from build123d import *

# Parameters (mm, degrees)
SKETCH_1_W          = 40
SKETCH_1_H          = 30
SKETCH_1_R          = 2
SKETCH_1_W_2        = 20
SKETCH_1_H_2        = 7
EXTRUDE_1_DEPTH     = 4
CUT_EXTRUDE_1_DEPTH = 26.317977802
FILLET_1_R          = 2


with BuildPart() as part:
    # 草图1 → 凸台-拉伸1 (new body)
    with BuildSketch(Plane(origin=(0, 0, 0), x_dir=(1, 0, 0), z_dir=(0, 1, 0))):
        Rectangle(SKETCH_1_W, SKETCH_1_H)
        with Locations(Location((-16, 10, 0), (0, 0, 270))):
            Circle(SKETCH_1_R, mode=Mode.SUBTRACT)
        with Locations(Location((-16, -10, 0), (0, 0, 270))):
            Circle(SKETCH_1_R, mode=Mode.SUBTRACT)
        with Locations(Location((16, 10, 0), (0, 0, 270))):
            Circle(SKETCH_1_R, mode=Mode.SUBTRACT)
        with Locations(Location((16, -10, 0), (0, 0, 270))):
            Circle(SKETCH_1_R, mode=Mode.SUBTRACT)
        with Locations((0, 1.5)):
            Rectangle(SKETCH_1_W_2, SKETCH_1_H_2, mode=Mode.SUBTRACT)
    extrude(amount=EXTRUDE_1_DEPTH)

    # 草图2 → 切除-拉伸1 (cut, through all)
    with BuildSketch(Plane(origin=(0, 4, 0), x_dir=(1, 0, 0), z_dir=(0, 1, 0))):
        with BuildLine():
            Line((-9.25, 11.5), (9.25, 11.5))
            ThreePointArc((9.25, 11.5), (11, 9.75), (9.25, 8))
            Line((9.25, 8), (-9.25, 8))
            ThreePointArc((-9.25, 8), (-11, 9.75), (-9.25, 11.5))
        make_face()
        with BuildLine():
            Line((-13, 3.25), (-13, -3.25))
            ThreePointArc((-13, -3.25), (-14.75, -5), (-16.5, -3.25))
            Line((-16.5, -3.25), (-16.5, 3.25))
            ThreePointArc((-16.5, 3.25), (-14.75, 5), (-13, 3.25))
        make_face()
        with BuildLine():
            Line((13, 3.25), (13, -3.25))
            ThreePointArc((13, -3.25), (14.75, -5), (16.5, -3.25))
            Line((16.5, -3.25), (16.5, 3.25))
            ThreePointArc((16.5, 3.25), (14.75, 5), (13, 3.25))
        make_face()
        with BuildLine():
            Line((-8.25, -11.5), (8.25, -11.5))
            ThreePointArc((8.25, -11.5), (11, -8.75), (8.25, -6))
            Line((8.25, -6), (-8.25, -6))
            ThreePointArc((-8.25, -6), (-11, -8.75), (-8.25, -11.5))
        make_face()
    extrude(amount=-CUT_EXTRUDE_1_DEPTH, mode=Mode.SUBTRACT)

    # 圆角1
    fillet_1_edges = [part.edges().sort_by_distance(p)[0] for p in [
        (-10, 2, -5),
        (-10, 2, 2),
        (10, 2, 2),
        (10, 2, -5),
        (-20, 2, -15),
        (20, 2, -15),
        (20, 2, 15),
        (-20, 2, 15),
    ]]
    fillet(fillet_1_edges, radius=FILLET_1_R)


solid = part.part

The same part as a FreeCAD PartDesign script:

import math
import FreeCAD as App
import Part
import Sketcher

V = App.Vector


def edges_at(feature, points):
    """Names of the edges that pass closest to the given points."""
    edges = feature.Shape.Edges
    near = lambda p: min(range(len(edges)), key=lambda i: edges[i].distToShape(Part.Vertex(*p))[0])
    return sorted({f"Edge{near(p) + 1}" for p in points})

doc = App.newDocument("Part")
body = doc.addObject("PartDesign::Body", "Body")

# Sketch on XZ plane
sketch1 = body.newObject("Sketcher::SketchObject", "Sketch")
sketch1.AttachmentSupport = (doc.getObject("XZ_Plane"), [""])
sketch1.MapMode = "FlatFace"
sketch1.addGeometry(Part.LineSegment(V(-20, -15, 0), V(-20, 15, 0)), False)
sketch1.addGeometry(Part.LineSegment(V(-20, 15, 0), V(20, 15, 0)), False)
sketch1.addGeometry(Part.LineSegment(V(20, 15, 0), V(20, -15, 0)), False)
sketch1.addGeometry(Part.LineSegment(V(20, -15, 0), V(-20, -15, 0)), False)
sketch1.addGeometry(Part.Circle(V(-16, 10, 0), V(0, 0, 1), 2), False)
sketch1.addGeometry(Part.Circle(V(16, 10, 0), V(0, 0, 1), 2), False)
sketch1.addGeometry(Part.Circle(V(-16, -10, 0), V(0, 0, 1), 2), False)
sketch1.addGeometry(Part.LineSegment(V(10, 2, 0), V(-10, 2, 0)), False)
sketch1.addGeometry(Part.LineSegment(V(-10, 2, 0), V(-10, -5, 0)), False)
sketch1.addGeometry(Part.LineSegment(V(-10, -5, 0), V(10, -5, 0)), False)
sketch1.addGeometry(Part.LineSegment(V(10, -5, 0), V(10, 2, 0)), False)
sketch1.addGeometry(Part.Circle(V(16, -10, 0), V(0, 0, 1), 2), False)
sketch1.addConstraint(Sketcher.Constraint("Coincident", 0, 2, 1, 1))
sketch1.addConstraint(Sketcher.Constraint("Coincident", 1, 2, 2, 1))
sketch1.addConstraint(Sketcher.Constraint("Coincident", 2, 2, 3, 1))
sketch1.addConstraint(Sketcher.Constraint("Coincident", 3, 2, 0, 1))
sketch1.addConstraint(Sketcher.Constraint("Coincident", 7, 2, 8, 1))
sketch1.addConstraint(Sketcher.Constraint("Coincident", 8, 2, 9, 1))
sketch1.addConstraint(Sketcher.Constraint("Coincident", 9, 2, 10, 1))
sketch1.addConstraint(Sketcher.Constraint("Coincident", 10, 2, 7, 1))
sketch1.addConstraint(Sketcher.Constraint("Vertical", 0))
sketch1.addConstraint(Sketcher.Constraint("Horizontal", 1))
sketch1.addConstraint(Sketcher.Constraint("Vertical", 2))
sketch1.addConstraint(Sketcher.Constraint("Horizontal", 3))
sketch1.addConstraint(Sketcher.Constraint("Horizontal", 7))
sketch1.addConstraint(Sketcher.Constraint("Vertical", 8))
sketch1.addConstraint(Sketcher.Constraint("Horizontal", 9))
sketch1.addConstraint(Sketcher.Constraint("Vertical", 10))
sketch1.addConstraint(Sketcher.Constraint("Equal", 4, 5))
sketch1.addConstraint(Sketcher.Constraint("Equal", 5, 6))
sketch1.addConstraint(Sketcher.Constraint("Equal", 6, 11))
sketch1.addConstraint(Sketcher.Constraint("Symmetric", 5, 3, 6, 3, -1, 1))
sketch1.addConstraint(Sketcher.Constraint("Symmetric", 4, 3, 11, 3, -1, 1))
sketch1.addConstraint(Sketcher.Constraint("Symmetric", 0, 2, 2, 2, -1, 1))
sketch1.addConstraint(Sketcher.Constraint("Symmetric", 4, 3, 5, 3, -2))
sketch1.addConstraint(Sketcher.Constraint("Diameter", 4, 4.0))
sketch1.addConstraint(Sketcher.Constraint("DistanceX", 1, 1, 1, 2, 40.0))
sketch1.addConstraint(Sketcher.Constraint("DistanceX", 7, 2, 7, 1, 20.0))
sketch1.addConstraint(Sketcher.Constraint("DistanceY", 0, 1, 0, 2, 30.0))
sketch1.addConstraint(Sketcher.Constraint("DistanceY", 8, 2, 8, 1, 7.0))
sketch1.addConstraint(Sketcher.Constraint("DistanceX", 4, 3, -1, 1, 16.0))
sketch1.addConstraint(Sketcher.Constraint("DistanceY", -1, 1, 4, 3, 10.0))
sketch1.addConstraint(Sketcher.Constraint("DistanceX", 7, 2, -1, 1, 10.0))
sketch1.addConstraint(Sketcher.Constraint("DistanceY", -1, 1, 7, 2, 2.0))
pad1 = body.newObject("PartDesign::Pad", "Pad")
pad1.Profile = sketch1
pad1.Length = 4
pad1.Reversed = True

# Sketch on XZ plane
sketch2 = body.newObject("Sketcher::SketchObject", "Sketch001")
sketch2.AttachmentSupport = (doc.getObject("XZ_Plane"), [""])
sketch2.MapMode = "FlatFace"
sketch2.AttachmentOffset = App.Placement(V(0, 0, -4), App.Rotation())
sketch2.addGeometry(Part.LineSegment(V(9.25, -11.5, 0), V(-9.25, -11.5, 0)), False)
sketch2.addGeometry(Part.ArcOfCircle(Part.Circle(V(-9.25, -9.75, 0), V(0, 0, 1), 1.75), math.radians(90), math.radians(270)), False)
sketch2.addGeometry(Part.LineSegment(V(-9.25, -8, 0), V(9.25, -8, 0)), False)
sketch2.addGeometry(Part.ArcOfCircle(Part.Circle(V(9.25, -9.75, 0), V(0, 0, 1), 1.75), math.radians(-90), math.radians(90)), False)
sketch2.addGeometry(Part.LineSegment(V(-13, 3.25, 0), V(-13, -3.25, 0)), False)
sketch2.addGeometry(Part.ArcOfCircle(Part.Circle(V(-14.75, -3.25, 0), V(0, 0, 1), 1.75), math.radians(180), math.radians(360)), False)
sketch2.addGeometry(Part.LineSegment(V(-16.5, -3.25, 0), V(-16.5, 3.25, 0)), False)
sketch2.addGeometry(Part.ArcOfCircle(Part.Circle(V(-14.75, 3.25, 0), V(0, 0, 1), 1.75), math.radians(0), math.radians(180)), False)
sketch2.addGeometry(Part.LineSegment(V(13, -3.25, 0), V(13, 3.25, 0)), False)
sketch2.addGeometry(Part.ArcOfCircle(Part.Circle(V(14.75, 3.25, 0), V(0, 0, 1), 1.75), math.radians(0), math.radians(180)), False)
sketch2.addGeometry(Part.LineSegment(V(16.5, 3.25, 0), V(16.5, -3.25, 0)), False)
sketch2.addGeometry(Part.ArcOfCircle(Part.Circle(V(14.75, -3.25, 0), V(0, 0, 1), 1.75), math.radians(180), math.radians(360)), False)
sketch2.addGeometry(Part.LineSegment(V(-8.25, 11.5, 0), V(8.25, 11.5, 0)), False)
sketch2.addGeometry(Part.ArcOfCircle(Part.Circle(V(8.25, 8.75, 0), V(0, 0, 1), 2.75), math.radians(-90), math.radians(90)), False)
sketch2.addGeometry(Part.LineSegment(V(8.25, 6, 0), V(-8.25, 6, 0)), False)
sketch2.addGeometry(Part.ArcOfCircle(Part.Circle(V(-8.25, 8.75, 0), V(0, 0, 1), 2.75), math.radians(90), math.radians(270)), False)
sketch2.addConstraint(Sketcher.Constraint("Tangent", 0, 2, 1, 2))
sketch2.addConstraint(Sketcher.Constraint("Tangent", 1, 1, 2, 1))
sketch2.addConstraint(Sketcher.Constraint("Tangent", 2, 2, 3, 2))
sketch2.addConstraint(Sketcher.Constraint("Tangent", 3, 1, 0, 1))
sketch2.addConstraint(Sketcher.Constraint("Tangent", 4, 2, 5, 2))
sketch2.addConstraint(Sketcher.Constraint("Tangent", 5, 1, 6, 1))
sketch2.addConstraint(Sketcher.Constraint("Tangent", 6, 2, 7, 2))
sketch2.addConstraint(Sketcher.Constraint("Tangent", 7, 1, 4, 1))
sketch2.addConstraint(Sketcher.Constraint("Tangent", 8, 2, 9, 2))
sketch2.addConstraint(Sketcher.Constraint("Tangent", 9, 1, 10, 1))
sketch2.addConstraint(Sketcher.Constraint("Tangent", 10, 2, 11, 2))
sketch2.addConstraint(Sketcher.Constraint("Tangent", 11, 1, 8, 1))
sketch2.addConstraint(Sketcher.Constraint("Tangent", 12, 2, 13, 2))
sketch2.addConstraint(Sketcher.Constraint("Tangent", 13, 1, 14, 1))
sketch2.addConstraint(Sketcher.Constraint("Tangent", 14, 2, 15, 2))
sketch2.addConstraint(Sketcher.Constraint("Tangent", 15, 1, 12, 1))
sketch2.addConstraint(Sketcher.Constraint("Horizontal", 0))
sketch2.addConstraint(Sketcher.Constraint("Horizontal", 2))
sketch2.addConstraint(Sketcher.Constraint("Vertical", 4))
sketch2.addConstraint(Sketcher.Constraint("Vertical", 6))
sketch2.addConstraint(Sketcher.Constraint("Vertical", 8))
sketch2.addConstraint(Sketcher.Constraint("Vertical", 10))
sketch2.addConstraint(Sketcher.Constraint("Horizontal", 12))
sketch2.addConstraint(Sketcher.Constraint("Horizontal", 14))
sketch2.addConstraint(Sketcher.Constraint("Equal", 3, 5))
sketch2.addConstraint(Sketcher.Constraint("Equal", 7, 9))
sketch2.addConstraint(Sketcher.Constraint("Symmetric", 5, 3, 9, 3, -1, 1))
sketch2.addConstraint(Sketcher.Constraint("Horizontal", 7, 3, 9, 3))
sketch2.addConstraint(Sketcher.Constraint("Horizontal", 5, 3, 11, 3))
sketch2.addConstraint(Sketcher.Constraint("Radius", 1, 1.75))
sketch2.addConstraint(Sketcher.Constraint("Radius", 13, 2.75))
sketch2.addConstraint(Sketcher.Constraint("DistanceX", 0, 2, 0, 1, 18.5))
sketch2.addConstraint(Sketcher.Constraint("DistanceX", 12, 1, 12, 2, 16.5))
sketch2.addConstraint(Sketcher.Constraint("DistanceY", 4, 2, 4, 1, 6.5))
sketch2.addConstraint(Sketcher.Constraint("DistanceY", 1, 1, -1, 1, 8.0))
sketch2.addConstraint(Sketcher.Constraint("DistanceX", 4, 2, -1, 1, 13.0))
sketch2.addConstraint(Sketcher.Constraint("DistanceY", -1, 1, 13, 1, 6.0))
sketch2.addConstraint(Sketcher.Constraint("DistanceX", 5, 3, 3, 3, 24.0))
sketch2.addConstraint(Sketcher.Constraint("DistanceX", 13, 3, 3, 3, 1.0))
pocket1 = body.newObject("PartDesign::Pocket", "Pocket")
pocket1.Profile = sketch2
pocket1.Type = "ThroughAll"
pocket1.Reversed = True
doc.recompute()

fillet = body.newObject("PartDesign::Fillet", "Fillet")
fillet.Base = (pocket1, edges_at(pocket1, [
    (-10, 2, -5),
    (-10, 2, 2),
    (10, 2, 2),
    (10, 2, -5),
    (-20, 2, -15),
    (20, 2, -15),
    (20, 2, 15),
    (-20, 2, 15),
]))
fillet.Radius = 2

doc.recompute()
